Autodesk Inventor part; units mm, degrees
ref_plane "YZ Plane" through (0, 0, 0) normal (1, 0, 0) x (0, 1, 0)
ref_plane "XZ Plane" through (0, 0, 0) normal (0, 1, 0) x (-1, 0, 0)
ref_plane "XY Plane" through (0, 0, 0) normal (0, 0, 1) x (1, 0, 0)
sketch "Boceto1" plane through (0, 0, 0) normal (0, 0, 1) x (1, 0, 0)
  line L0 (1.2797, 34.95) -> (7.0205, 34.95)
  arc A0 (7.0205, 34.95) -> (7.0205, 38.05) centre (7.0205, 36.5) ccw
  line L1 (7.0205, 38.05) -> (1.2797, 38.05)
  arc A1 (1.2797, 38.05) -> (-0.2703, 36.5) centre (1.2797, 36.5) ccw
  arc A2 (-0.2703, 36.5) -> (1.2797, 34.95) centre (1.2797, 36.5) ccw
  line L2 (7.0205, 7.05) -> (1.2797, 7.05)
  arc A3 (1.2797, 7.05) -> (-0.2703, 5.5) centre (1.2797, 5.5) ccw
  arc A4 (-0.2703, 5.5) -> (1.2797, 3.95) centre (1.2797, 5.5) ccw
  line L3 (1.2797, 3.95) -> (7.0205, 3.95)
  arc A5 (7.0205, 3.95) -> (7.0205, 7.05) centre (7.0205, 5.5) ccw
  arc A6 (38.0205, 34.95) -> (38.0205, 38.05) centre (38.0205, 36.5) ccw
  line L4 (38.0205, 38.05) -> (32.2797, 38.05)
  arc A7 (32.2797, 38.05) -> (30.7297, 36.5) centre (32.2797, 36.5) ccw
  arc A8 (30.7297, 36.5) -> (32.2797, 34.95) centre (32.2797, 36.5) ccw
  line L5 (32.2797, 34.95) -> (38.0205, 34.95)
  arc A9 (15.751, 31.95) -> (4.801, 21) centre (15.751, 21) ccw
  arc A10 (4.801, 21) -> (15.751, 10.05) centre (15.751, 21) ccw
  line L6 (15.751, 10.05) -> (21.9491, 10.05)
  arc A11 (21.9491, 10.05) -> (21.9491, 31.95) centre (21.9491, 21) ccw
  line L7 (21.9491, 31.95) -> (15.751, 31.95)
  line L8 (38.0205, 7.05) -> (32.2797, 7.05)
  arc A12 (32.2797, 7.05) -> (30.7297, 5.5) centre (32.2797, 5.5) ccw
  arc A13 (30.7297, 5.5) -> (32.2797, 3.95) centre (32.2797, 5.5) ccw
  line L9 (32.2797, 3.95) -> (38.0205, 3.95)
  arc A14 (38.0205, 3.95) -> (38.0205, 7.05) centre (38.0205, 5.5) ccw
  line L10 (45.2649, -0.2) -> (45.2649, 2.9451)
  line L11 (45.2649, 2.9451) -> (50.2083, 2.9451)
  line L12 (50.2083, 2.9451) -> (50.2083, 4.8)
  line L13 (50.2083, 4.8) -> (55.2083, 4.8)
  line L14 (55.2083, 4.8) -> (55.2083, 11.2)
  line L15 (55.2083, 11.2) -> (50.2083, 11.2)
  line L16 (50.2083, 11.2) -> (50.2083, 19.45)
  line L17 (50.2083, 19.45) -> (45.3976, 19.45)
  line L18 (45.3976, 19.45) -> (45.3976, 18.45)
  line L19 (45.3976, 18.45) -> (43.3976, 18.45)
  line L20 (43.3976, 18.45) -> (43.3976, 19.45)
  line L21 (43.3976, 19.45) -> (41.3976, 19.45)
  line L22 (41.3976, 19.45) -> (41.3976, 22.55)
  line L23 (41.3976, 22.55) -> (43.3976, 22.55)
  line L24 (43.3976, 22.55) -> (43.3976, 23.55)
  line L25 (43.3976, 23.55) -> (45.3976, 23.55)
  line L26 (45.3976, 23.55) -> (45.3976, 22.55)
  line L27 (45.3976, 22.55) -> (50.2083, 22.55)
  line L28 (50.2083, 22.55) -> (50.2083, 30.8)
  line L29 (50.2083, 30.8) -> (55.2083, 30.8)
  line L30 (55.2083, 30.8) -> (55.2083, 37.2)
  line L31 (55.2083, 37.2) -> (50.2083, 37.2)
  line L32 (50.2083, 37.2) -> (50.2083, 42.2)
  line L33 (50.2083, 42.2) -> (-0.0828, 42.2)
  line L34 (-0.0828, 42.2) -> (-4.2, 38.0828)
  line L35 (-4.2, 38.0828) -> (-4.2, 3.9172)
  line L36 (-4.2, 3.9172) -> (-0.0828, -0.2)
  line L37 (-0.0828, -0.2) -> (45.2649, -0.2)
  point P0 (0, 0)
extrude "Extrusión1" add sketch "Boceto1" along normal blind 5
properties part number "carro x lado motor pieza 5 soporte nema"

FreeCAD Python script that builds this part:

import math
import FreeCAD as App
import Part
import Sketcher

V = App.Vector

doc = App.newDocument("Part")
body = doc.addObject("PartDesign::Body", "Body")

# Sketch on XY plane
sketch1 = doc.addObject("Sketcher::SketchObject", "Sketch")
body.addObject(sketch1)
sketch1.AttachmentSupport = (doc.XY_Plane, [""])
sketch1.MapMode = "FlatFace"
sketch1.addGeometry([
    Part.LineSegment(V(-0.1, -0.2, 0), V(45.3, -0.2, 0)),  # 0
    Part.LineSegment(V(45.3, -0.2, 0), V(45.3, 2.9, 0)),  # 1
    Part.LineSegment(V(45.3, 2.9, 0), V(50.2, 2.9, 0)),  # 2
    Part.LineSegment(V(50.2, 2.9, 0), V(50.2, 4.8, 0)),  # 3
    Part.LineSegment(V(50.2, 4.8, 0), V(55.2, 4.8, 0)),  # 4
    Part.LineSegment(V(55.2, 4.8, 0), V(55.2, 11.2, 0)),  # 5
    Part.LineSegment(V(55.2, 11.2, 0), V(50.2, 11.2, 0)),  # 6
    Part.LineSegment(V(50.2, 11.2, 0), V(50.2, 19.4, 0)),  # 7
    Part.LineSegment(V(50.2, 19.4, 0), V(45.4, 19.4, 0)),  # 8
    Part.LineSegment(V(45.4, 19.4, 0), V(45.4, 18.4, 0)),  # 9
    Part.LineSegment(V(45.4, 18.4, 0), V(43.4, 18.4, 0)),  # 10
    Part.LineSegment(V(43.4, 18.4, 0), V(43.4, 19.4, 0)),  # 11
    Part.LineSegment(V(43.4, 19.4, 0), V(41.4, 19.4, 0)),  # 12
    Part.LineSegment(V(41.4, 19.4, 0), V(41.4, 22.6, 0)),  # 13
    Part.LineSegment(V(41.4, 22.6, 0), V(43.4, 22.6, 0)),  # 14
    Part.LineSegment(V(43.4, 22.6, 0), V(43.4, 23.6, 0)),  # 15
    Part.LineSegment(V(43.4, 23.6, 0), V(45.4, 23.6, 0)),  # 16
    Part.LineSegment(V(45.4, 23.6, 0), V(45.4, 22.6, 0)),  # 17
    Part.LineSegment(V(45.4, 22.6, 0), V(50.2, 22.6, 0)),  # 18
    Part.LineSegment(V(50.2, 22.6, 0), V(50.2, 30.8, 0)),  # 19
    Part.LineSegment(V(50.2, 30.8, 0), V(55.2, 30.8, 0)),  # 20
    Part.LineSegment(V(55.2, 30.8, 0), V(55.2, 37.2, 0)),  # 21
    Part.LineSegment(V(55.2, 37.2, 0), V(50.2, 37.2, 0)),  # 22
    Part.LineSegment(V(50.2, 37.2, 0), V(50.2, 42.2, 0)),  # 23
    Part.LineSegment(V(50.2, 42.2, 0), V(-0.1, 42.2, 0)),  # 24
    Part.LineSegment(V(-0.1, 42.2, 0), V(-4.2, 38.1, 0)),  # 25
    Part.LineSegment(V(-4.2, 38.1, 0), V(-4.2, 3.9, 0)),  # 26
    Part.LineSegment(V(-4.2, 3.9, 0), V(-0.1, -0.2, 0)),  # 27
    Part.LineSegment(V(1.3, 7, 0), V(7, 7, 0)),  # 28
    Part.ArcOfCircle(Part.Circle(V(7, 5.5, 0), V(0, 0, 1), 1.5), math.radians(-90), math.radians(90)),  # 29
    Part.LineSegment(V(7, 4, 0), V(1.3, 4, 0)),  # 30
    Part.ArcOfCircle(Part.Circle(V(1.3, 5.5, 0), V(0, 0, 1), 1.6), math.radians(90), math.radians(270)),  # 31
    Part.ArcOfCircle(Part.Circle(V(15.8, 21, 0), V(0, 0, 1), 10.9), math.radians(90), math.radians(270)),  # 32
    Part.LineSegment(V(15.8, 31.9, 0), V(21.9, 31.9, 0)),  # 33
    Part.ArcOfCircle(Part.Circle(V(21.9, 21, 0), V(0, 0, 1), 10.9), math.radians(-90), math.radians(90)),  # 34
    Part.LineSegment(V(21.9, 10.1, 0), V(15.8, 10.1, 0)),  # 35
    Part.LineSegment(V(32.3, 7, 0), V(38, 7, 0)),  # 36
    Part.ArcOfCircle(Part.Circle(V(38, 5.5, 0), V(0, 0, 1), 1.5), math.radians(-90), math.radians(90)),  # 37
    Part.LineSegment(V(38, 4, 0), V(32.3, 4, 0)),  # 38
    Part.ArcOfCircle(Part.Circle(V(32.3, 5.5, 0), V(0, 0, 1), 1.5), math.radians(90), math.radians(270)),  # 39
    Part.LineSegment(V(7, 35, 0), V(1.3, 35, 0)),  # 40
    Part.ArcOfCircle(Part.Circle(V(1.3, 36.5, 0), V(0, 0, 1), 1.6), math.radians(90), math.radians(270)),  # 41
    Part.LineSegment(V(1.3, 38, 0), V(7, 38, 0)),  # 42
    Part.ArcOfCircle(Part.Circle(V(7, 36.5, 0), V(0, 0, 1), 1.5), math.radians(-90), math.radians(90)),  # 43
    Part.ArcOfCircle(Part.Circle(V(38, 36.5, 0), V(0, 0, 1), 1.5), math.radians(-90), math.radians(90)),  # 44
    Part.LineSegment(V(38, 35, 0), V(32.3, 35, 0)),  # 45
    Part.ArcOfCircle(Part.Circle(V(32.3, 36.5, 0), V(0, 0, 1), 1.5), math.radians(90), math.radians(270)),  # 46
    Part.LineSegment(V(32.3, 38, 0), V(38, 38, 0)),  # 47
], False)
sketch1.addConstraint([
    Sketcher.Constraint("Coincident", 0, 2, 1, 1),
    Sketcher.Constraint("Coincident", 1, 2, 2, 1),
    Sketcher.Constraint("Coincident", 2, 2, 3, 1),
    Sketcher.Constraint("Coincident", 3, 2, 4, 1),
    Sketcher.Constraint("Coincident", 4, 2, 5, 1),
    Sketcher.Constraint("Coincident", 5, 2, 6, 1),
    Sketcher.Constraint("Coincident", 6, 2, 7, 1),
    Sketcher.Constraint("Coincident", 7, 2, 8, 1),
    Sketcher.Constraint("Coincident", 8, 2, 9, 1),
    Sketcher.Constraint("Coincident", 9, 2, 10, 1),
    Sketcher.Constraint("Coincident", 10, 2, 11, 1),
    Sketcher.Constraint("Coincident", 11, 2, 12, 1),
    Sketcher.Constraint("Coincident", 12, 2, 13, 1),
    Sketcher.Constraint("Coincident", 13, 2, 14, 1),
    Sketcher.Constraint("Coincident", 14, 2, 15, 1),
    Sketcher.Constraint("Coincident", 15, 2, 16, 1),
    Sketcher.Constraint("Coincident", 16, 2, 17, 1),
    Sketcher.Constraint("Coincident", 17, 2, 18, 1),
    Sketcher.Constraint("Coincident", 18, 2, 19, 1),
    Sketcher.Constraint("Coincident", 19, 2, 20, 1),
    Sketcher.Constraint("Coincident", 20, 2, 21, 1),
    Sketcher.Constraint("Coincident", 21, 2, 22, 1),
    Sketcher.Constraint("Coincident", 22, 2, 23, 1),
    Sketcher.Constraint("Coincident", 23, 2, 24, 1),
    Sketcher.Constraint("Coincident", 24, 2, 25, 1),
    Sketcher.Constraint("Coincident", 25, 2, 26, 1),
    Sketcher.Constraint("Coincident", 26, 2, 27, 1),
    Sketcher.Constraint("Coincident", 27, 2, 0, 1),
    Sketcher.Constraint("Tangent", 28, 2, 29, 2),
    Sketcher.Constraint("Tangent", 29, 1, 30, 1),
    Sketcher.Constraint("Tangent", 30, 2, 31, 2),
    Sketcher.Constraint("Tangent", 31, 1, 28, 1),
    Sketcher.Constraint("Tangent", 32, 1, 33, 1),
    Sketcher.Constraint("Tangent", 33, 2, 34, 2),
    Sketcher.Constraint("Tangent", 34, 1, 35, 1),
    Sketcher.Constraint("Tangent", 35, 2, 32, 2),
    Sketcher.Constraint("Tangent", 36, 2, 37, 2),
    Sketcher.Constraint("Tangent", 37, 1, 38, 1),
    Sketcher.Constraint("Tangent", 38, 2, 39, 2),
    Sketcher.Constraint("Tangent", 39, 1, 36, 1),
    Sketcher.Constraint("Tangent", 40, 2, 41, 2),
    Sketcher.Constraint("Tangent", 41, 1, 42, 1),
    Sketcher.Constraint("Tangent", 42, 2, 43, 2),
    Sketcher.Constraint("Tangent", 43, 1, 40, 1),
    Sketcher.Constraint("Tangent", 44, 1, 45, 1),
    Sketcher.Constraint("Tangent", 45, 2, 46, 2),
    Sketcher.Constraint("Tangent", 46, 1, 47, 1),
    Sketcher.Constraint("Tangent", 47, 2, 44, 2),
    Sketcher.Constraint("Horizontal", 0),
    Sketcher.Constraint("Vertical", 1),
    Sketcher.Constraint("Horizontal", 2),
    Sketcher.Constraint("Vertical", 3),
    Sketcher.Constraint("Horizontal", 4),
    Sketcher.Constraint("Vertical", 5),
    Sketcher.Constraint("Horizontal", 6),
    Sketcher.Constraint("Vertical", 7),
    Sketcher.Constraint("Horizontal", 8),
    Sketcher.Constraint("Vertical", 9),
    Sketcher.Constraint("Horizontal", 10),
    Sketcher.Constraint("Vertical", 11),
    Sketcher.Constraint("Horizontal", 12),
    Sketcher.Constraint("Vertical", 13),
    Sketcher.Constraint("Horizontal", 14),
    Sketcher.Constraint("Vertical", 15),
    Sketcher.Constraint("Horizontal", 16),
    Sketcher.Constraint("Vertical", 17),
    Sketcher.Constraint("Horizontal", 18),
    Sketcher.Constraint("Vertical", 19),
    Sketcher.Constraint("Horizontal", 20),
    Sketcher.Constraint("Vertical", 21),
    Sketcher.Constraint("Horizontal", 22),
    Sketcher.Constraint("Vertical", 23),
    Sketcher.Constraint("Horizontal", 24),
    Sketcher.Constraint("Vertical", 26),
    Sketcher.Constraint("Horizontal", 28),
    Sketcher.Constraint("Horizontal", 30),
    Sketcher.Constraint("Horizontal", 33),
    Sketcher.Constraint("Horizontal", 35),
    Sketcher.Constraint("Horizontal", 36),
    Sketcher.Constraint("Horizontal", 38),
    Sketcher.Constraint("Horizontal", 40),
    Sketcher.Constraint("Horizontal", 42),
    Sketcher.Constraint("Horizontal", 45),
    Sketcher.Constraint("Horizontal", 47),
    Sketcher.Constraint("Equal", 31, 37),
    Sketcher.Constraint("Equal", 39, 41),
    Sketcher.Constraint("Equal", 43, 44),
    Sketcher.Constraint("Perpendicular", 25, 27),
    Sketcher.Constraint("Horizontal", 31, 3, 37, 3),
    Sketcher.Constraint("Horizontal", 43, 3, 44, 3),
    Sketcher.Constraint("Horizontal", 8, 2, 11, 2),
    Sketcher.Constraint("Horizontal", 14, 2, 17, 2),
    Sketcher.Constraint("Vertical", 31, 3, 41, 3),
    Sketcher.Constraint("Vertical", 29, 3, 43, 3),
    Sketcher.Constraint("Vertical", 37, 3, 44, 3),
    Sketcher.Constraint("Vertical", 39, 3, 46, 3),
    Sketcher.Constraint("Vertical", 3, 2, 6, 2),
    Sketcher.Constraint("Vertical", 11, 2, 14, 2),
    Sketcher.Constraint("Vertical", 9, 2, 16, 2),
    Sketcher.Constraint("Vertical", 7, 2, 18, 2),
    Sketcher.Constraint("Vertical", 5, 2, 20, 2),
    Sketcher.Constraint("Vertical", 19, 2, 22, 2),
    Sketcher.Constraint("Vertical", 24, 2, 27, 2),
    Sketcher.Constraint("Equal", 10, 12),
    Sketcher.Constraint("Equal", 30, 36),
    Sketcher.Constraint("Equal", 11, 15),
    Sketcher.Constraint("Equal", 7, 19),
    Sketcher.Constraint("Equal", 5, 21),
    Sketcher.Constraint("Equal", 22, 23),
    Sketcher.Constraint("Equal", 25, 27),
    Sketcher.Constraint("DistanceX", 4, 1, 4, 2, 5.0),
    Sketcher.Constraint("DistanceX", 10, 2, 10, 1, 2.0),
    Sketcher.Constraint("DistanceY", 9, 2, 9, 1, 1.0),
    Sketcher.Constraint("Radius", 29, 1.55),
    Sketcher.Constraint("Radius", 32, 10.95),
    Sketcher.Constraint("DistanceY", 5, 1, 5, 2, 6.4),
    Sketcher.Constraint("DistanceY", 13, 1, 13, 2, 3.1),
    Sketcher.Constraint("DistanceY", -1, 1, 32, 3, 21.0),
    Sketcher.Constraint("DistanceX", 29, 3, 37, 3, 31.0),
    Sketcher.Constraint("DistanceY", 31, 3, 41, 3, 31.0),
    Sketcher.Constraint("DistanceY", 0, 2, 3, 2, 5.0),
    Sketcher.Constraint("DistanceY", 28, 2, 34, 1, 3.0),
    Sketcher.Constraint("DistanceY", 7, 1, 7, 2, 8.25),
    Sketcher.Constraint("DistanceY", 0, 2, -1, 1, 0.2),
    Sketcher.Constraint("DistanceX", 25, 2, -1, 1, 4.2),
    Sketcher.Constraint("DistanceX", 24, 2, 24, 1, 50.291),
    Sketcher.Constraint("DistanceX", 33, 1, 33, 2, 6.198),
    Sketcher.Constraint("DistanceY", 1, 1, 1, 2, 3.145),
    Sketcher.Constraint("DistanceX", 0, 1, 0, 2, 45.3477),
    Sketcher.Constraint("DistanceX", 8, 2, 8, 1, 4.8107),
    Sketcher.Constraint("DistanceX", 28, 1, 28, 2, 5.7408),
    Sketcher.Constraint("DistanceY", 26, 2, 26, 1, 34.1656),
    Sketcher.Constraint("DistanceX", -1, 1, 32, 3, 15.751),
    Sketcher.Constraint("DistanceX", 37, 3, 8, 2, 7.377),
])
pad1 = doc.addObject("PartDesign::Pad", "Pad")
body.addObject(pad1)
pad1.Profile = sketch1
pad1.Length = 5

doc.recompute()
